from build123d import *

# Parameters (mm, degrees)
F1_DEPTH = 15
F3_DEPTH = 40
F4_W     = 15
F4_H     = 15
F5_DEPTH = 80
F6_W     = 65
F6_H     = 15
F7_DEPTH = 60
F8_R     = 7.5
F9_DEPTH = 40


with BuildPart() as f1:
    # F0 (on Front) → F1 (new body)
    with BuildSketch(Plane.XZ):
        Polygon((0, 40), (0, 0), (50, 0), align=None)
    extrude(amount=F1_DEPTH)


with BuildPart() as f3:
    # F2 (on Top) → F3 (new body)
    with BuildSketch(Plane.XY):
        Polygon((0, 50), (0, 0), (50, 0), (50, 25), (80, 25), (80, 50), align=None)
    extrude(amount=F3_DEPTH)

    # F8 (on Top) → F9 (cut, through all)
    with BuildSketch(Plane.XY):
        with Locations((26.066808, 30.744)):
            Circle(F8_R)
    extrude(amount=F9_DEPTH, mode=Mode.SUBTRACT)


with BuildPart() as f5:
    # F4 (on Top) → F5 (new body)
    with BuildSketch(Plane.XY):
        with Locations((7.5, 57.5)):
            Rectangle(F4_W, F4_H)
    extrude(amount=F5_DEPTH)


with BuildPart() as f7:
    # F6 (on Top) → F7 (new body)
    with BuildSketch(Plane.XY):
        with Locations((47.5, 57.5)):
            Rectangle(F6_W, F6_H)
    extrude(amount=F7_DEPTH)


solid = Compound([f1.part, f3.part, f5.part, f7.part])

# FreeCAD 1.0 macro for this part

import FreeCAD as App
import Part
import Sketcher


def add_polygon(sketch, points):
    """Adds a closed chain of lines whose ends are joined by coincident constraints."""
    first, n = sketch.GeometryCount, len(points)
    for a, b in zip(points, points[1:] + points[:1]):
        sketch.addGeometry(Part.LineSegment(App.Vector(*a, 0), App.Vector(*b, 0)), False)
    for i in range(n):
        sketch.addConstraint(Sketcher.Constraint("Coincident", first + i, 2, first + (i + 1) % n, 1))

doc = App.newDocument("Part")
body = doc.addObject("PartDesign::Body", "Body")

sketch1 = doc.addObject("Sketcher::SketchObject", "Sketch")
body.addObject(sketch1)
sketch1.AttachmentSupport = (doc.XZ_Plane, [""])
sketch1.MapMode = "FlatFace"
add_polygon(sketch1, [(0, 40), (0, 0), (50, 0)])
sketch1.addConstraint([
    Sketcher.Constraint("Vertical", 0),
    Sketcher.Constraint("Horizontal", 1),
    Sketcher.Constraint("Coincident", 0, 2, -1, 1),
    Sketcher.Constraint("DistanceX", 1, 1, 1, 2, 50.0),
    Sketcher.Constraint("DistanceY", 0, 2, 0, 1, 40.0),
])
pad1 = doc.addObject("PartDesign::Pad", "Pad")
body.addObject(pad1)
pad1.Profile = sketch1
pad1.Length = 15
body2 = doc.addObject("PartDesign::Body", "Body001")

sketch2 = doc.addObject("Sketcher::SketchObject", "Sketch001")
body2.addObject(sketch2)
sketch2.AttachmentSupport = (doc.getObject("XY_Plane001"), [""])
sketch2.MapMode = "FlatFace"
add_polygon(sketch2, [(0, 50), (0, 0), (50, 0), (50, 25), (80, 25), (80, 50)])
sketch2.addConstraint([
    Sketcher.Constraint("Vertical", 0),
    Sketcher.Constraint("Horizontal", 1),
    Sketcher.Constraint("Vertical", 2),
    Sketcher.Constraint("Horizontal", 3),
    Sketcher.Constraint("Vertical", 4),
    Sketcher.Constraint("Horizontal", 5),
    Sketcher.Constraint("Coincident", 0, 2, -1, 1),
    Sketcher.Constraint("Equal", 1, 0),
    Sketcher.Constraint("Equal", 2, 4),
    Sketcher.Constraint("DistanceX", 1, 1, 1, 2, 50.0),
    Sketcher.Constraint("DistanceX", 3, 1, 3, 2, 30.0),
])
pad2 = doc.addObject("PartDesign::Pad", "Pad001")
body2.addObject(pad2)
pad2.Profile = sketch2
pad2.Length = 40

sketch3 = doc.addObject("Sketcher::SketchObject", "Sketch002")
body2.addObject(sketch3)
sketch3.AttachmentSupport = (doc.getObject("XY_Plane001"), [""])
sketch3.MapMode = "FlatFace"
sketch3.addGeometry(Part.Circle(App.Vector(26, 31, 0), App.Vector(0, 0, 1), 8), False)
sketch3.addConstraint([
    Sketcher.Constraint("Diameter", 0, 15.0),
    Sketcher.Constraint("DistanceY", -1, 1, 0, 3, 30.744),
    Sketcher.Constraint("DistanceX", -1, 1, 0, 3, 26.066808),
])
pocket1 = doc.addObject("PartDesign::Pocket", "Pocket")
body2.addObject(pocket1)
pocket1.Profile = sketch3
pocket1.Type = "ThroughAll"
pocket1.Reversed = True
body3 = doc.addObject("PartDesign::Body", "Body002")

sketch4 = doc.addObject("Sketcher::SketchObject", "Sketch003")
body3.addObject(sketch4)
sketch4.AttachmentSupport = (doc.getObject("XY_Plane002"), [""])
sketch4.MapMode = "FlatFace"
add_polygon(sketch4, [(0, 65), (0, 50), (15, 50), (15, 65)])
sketch4.addConstraint([
    Sketcher.Constraint("Vertical", 0),
    Sketcher.Constraint("Horizontal", 1),
    Sketcher.Constraint("Vertical", 2),
    Sketcher.Constraint("Horizontal", 3),
    Sketcher.Constraint("PointOnObject", 0, 2, -2),
    Sketcher.Constraint("Equal", 3, 0),
    Sketcher.Constraint("DistanceX", 1, 1, 1, 2, 15.0),
    Sketcher.Constraint("DistanceY", -1, 1, 0, 2, 50.0),
])
pad3 = doc.addObject("PartDesign::Pad", "Pad002")
body3.addObject(pad3)
pad3.Profile = sketch4
pad3.Length = 80
body4 = doc.addObject("PartDesign::Body", "Body003")

sketch5 = doc.addObject("Sketcher::SketchObject", "Sketch004")
body4.addObject(sketch5)
sketch5.AttachmentSupport = (doc.getObject("XY_Plane003"), [""])
sketch5.MapMode = "FlatFace"
add_polygon(sketch5, [(15, 65), (15, 50), (80, 50), (80, 65)])
sketch5.addConstraint([
    Sketcher.Constraint("Vertical", 0),
    Sketcher.Constraint("Horizontal", 1),
    Sketcher.Constraint("Vertical", 2),
    Sketcher.Constraint("Horizontal", 3),
    Sketcher.Constraint("DistanceX", 1, 1, 1, 2, 65.0),
    Sketcher.Constraint("DistanceY", 0, 2, 0, 1, 15.0),
    Sketcher.Constraint("DistanceX", -1, 1, 0, 2, 15.0),
    Sketcher.Constraint("DistanceY", -1, 1, 0, 2, 50.0),
])
pad4 = doc.addObject("PartDesign::Pad", "Pad003")
body4.addObject(pad4)
pad4.Profile = sketch5
pad4.Length = 60

doc.recompute()
